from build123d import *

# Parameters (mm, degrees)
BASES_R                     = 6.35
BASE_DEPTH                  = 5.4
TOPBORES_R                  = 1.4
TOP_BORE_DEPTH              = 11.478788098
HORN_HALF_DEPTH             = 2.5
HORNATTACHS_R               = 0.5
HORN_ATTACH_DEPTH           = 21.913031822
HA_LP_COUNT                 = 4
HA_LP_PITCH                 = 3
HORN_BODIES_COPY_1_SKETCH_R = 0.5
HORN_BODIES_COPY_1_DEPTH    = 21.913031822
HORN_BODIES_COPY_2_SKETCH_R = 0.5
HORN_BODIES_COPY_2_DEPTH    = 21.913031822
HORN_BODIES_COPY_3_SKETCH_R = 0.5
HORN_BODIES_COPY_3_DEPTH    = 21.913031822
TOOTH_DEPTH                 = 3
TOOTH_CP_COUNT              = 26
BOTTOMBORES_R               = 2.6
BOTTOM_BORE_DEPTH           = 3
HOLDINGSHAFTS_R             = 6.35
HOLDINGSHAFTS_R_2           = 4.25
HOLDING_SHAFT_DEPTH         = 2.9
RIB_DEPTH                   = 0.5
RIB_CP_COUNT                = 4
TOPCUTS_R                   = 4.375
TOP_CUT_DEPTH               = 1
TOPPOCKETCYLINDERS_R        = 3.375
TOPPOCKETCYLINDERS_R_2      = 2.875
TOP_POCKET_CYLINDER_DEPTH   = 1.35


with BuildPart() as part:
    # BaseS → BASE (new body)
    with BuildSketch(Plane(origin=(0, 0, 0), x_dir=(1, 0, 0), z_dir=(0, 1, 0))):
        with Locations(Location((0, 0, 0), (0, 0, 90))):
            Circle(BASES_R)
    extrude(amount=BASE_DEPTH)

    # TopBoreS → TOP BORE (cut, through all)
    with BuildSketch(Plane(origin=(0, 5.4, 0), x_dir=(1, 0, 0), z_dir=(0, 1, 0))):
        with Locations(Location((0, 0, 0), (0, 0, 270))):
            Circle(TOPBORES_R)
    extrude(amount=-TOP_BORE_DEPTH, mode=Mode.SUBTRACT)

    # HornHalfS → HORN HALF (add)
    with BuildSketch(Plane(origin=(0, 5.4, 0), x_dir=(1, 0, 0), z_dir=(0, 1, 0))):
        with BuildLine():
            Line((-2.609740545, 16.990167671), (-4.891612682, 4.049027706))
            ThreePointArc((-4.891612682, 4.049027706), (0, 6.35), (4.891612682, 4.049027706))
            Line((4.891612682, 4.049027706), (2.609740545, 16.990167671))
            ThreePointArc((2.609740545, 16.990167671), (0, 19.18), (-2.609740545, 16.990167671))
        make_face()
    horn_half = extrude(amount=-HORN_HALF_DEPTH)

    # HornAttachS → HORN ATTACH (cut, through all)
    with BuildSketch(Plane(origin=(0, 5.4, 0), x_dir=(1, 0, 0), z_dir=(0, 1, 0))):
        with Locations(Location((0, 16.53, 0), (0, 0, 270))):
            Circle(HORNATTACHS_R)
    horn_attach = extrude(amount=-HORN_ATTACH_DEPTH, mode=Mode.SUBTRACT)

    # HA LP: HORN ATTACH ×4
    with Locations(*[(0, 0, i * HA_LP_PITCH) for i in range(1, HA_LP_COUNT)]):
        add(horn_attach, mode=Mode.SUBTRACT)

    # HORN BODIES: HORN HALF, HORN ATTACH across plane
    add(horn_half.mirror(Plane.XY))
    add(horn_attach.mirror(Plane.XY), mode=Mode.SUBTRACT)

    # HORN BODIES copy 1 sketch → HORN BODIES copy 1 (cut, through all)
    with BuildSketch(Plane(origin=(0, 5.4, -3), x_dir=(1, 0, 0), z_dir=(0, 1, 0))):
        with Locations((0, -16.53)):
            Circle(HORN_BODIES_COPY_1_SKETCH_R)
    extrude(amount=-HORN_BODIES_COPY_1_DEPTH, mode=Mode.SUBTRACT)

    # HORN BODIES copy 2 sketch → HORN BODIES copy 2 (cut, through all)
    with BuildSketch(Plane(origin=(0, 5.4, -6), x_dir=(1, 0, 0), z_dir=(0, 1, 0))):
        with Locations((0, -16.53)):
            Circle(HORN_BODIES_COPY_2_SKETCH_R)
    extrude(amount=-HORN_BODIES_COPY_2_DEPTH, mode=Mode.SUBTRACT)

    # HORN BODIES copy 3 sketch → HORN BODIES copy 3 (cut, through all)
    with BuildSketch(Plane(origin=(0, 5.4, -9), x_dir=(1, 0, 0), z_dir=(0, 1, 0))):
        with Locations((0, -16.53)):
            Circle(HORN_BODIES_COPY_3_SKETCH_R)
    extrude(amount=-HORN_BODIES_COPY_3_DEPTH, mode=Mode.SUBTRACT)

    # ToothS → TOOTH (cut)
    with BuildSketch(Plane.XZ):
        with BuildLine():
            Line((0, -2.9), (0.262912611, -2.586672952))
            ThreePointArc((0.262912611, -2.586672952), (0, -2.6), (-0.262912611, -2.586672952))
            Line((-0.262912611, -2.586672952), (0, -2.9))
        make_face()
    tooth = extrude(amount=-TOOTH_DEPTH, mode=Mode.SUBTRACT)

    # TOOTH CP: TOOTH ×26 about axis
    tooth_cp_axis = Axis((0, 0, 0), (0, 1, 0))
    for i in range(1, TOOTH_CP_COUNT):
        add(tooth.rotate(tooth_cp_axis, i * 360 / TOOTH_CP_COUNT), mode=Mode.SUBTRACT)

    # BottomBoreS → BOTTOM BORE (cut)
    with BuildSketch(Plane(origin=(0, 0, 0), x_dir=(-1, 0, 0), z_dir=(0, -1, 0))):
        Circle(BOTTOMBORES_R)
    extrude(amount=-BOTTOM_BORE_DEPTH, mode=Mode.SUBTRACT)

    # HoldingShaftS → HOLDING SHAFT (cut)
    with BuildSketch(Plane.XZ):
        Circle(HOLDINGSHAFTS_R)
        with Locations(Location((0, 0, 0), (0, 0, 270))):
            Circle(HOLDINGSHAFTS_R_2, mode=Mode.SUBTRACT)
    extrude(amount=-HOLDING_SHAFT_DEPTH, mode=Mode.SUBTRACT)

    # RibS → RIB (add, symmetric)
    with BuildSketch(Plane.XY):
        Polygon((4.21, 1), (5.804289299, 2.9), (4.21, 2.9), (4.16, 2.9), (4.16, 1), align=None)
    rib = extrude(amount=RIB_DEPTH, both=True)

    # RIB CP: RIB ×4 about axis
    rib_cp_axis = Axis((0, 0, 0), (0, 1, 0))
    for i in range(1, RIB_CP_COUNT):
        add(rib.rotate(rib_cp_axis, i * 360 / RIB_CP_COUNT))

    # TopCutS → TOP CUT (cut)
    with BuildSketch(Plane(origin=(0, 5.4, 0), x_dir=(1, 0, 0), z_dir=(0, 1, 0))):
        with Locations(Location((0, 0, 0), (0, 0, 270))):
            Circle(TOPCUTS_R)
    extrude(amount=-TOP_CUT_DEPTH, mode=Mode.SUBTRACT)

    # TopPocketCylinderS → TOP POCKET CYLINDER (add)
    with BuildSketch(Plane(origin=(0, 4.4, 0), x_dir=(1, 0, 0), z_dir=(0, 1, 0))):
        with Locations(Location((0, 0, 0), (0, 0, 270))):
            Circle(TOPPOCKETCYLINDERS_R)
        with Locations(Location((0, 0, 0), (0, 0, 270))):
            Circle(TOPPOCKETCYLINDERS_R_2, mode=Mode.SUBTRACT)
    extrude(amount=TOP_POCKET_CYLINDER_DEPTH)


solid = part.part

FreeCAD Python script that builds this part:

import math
import FreeCAD as App
import Part
import Sketcher

V = App.Vector
Q = App.Units.Quantity

doc = App.newDocument("Part")
body = doc.addObject("PartDesign::Body", "Body")

# Sketch on XZ plane
sketch1 = doc.addObject("Sketcher::SketchObject", "Sketch")
body.addObject(sketch1)
sketch1.AttachmentSupport = (doc.XZ_Plane, [""])
sketch1.MapMode = "FlatFace"
sketch1.addGeometry(Part.Circle(V(0, 0, 0), V(0, 0, 1), 6.35), False)
sketch1.addConstraint(Sketcher.Constraint("Coincident", 0, 3, -1, 1))
sketch1.addConstraint(Sketcher.Constraint("Diameter", 0, Q("12.7 mm")))
pad1 = doc.addObject("PartDesign::Pad", "Pad")
body.addObject(pad1)
pad1.Profile = sketch1
pad1.Length = 5.4
pad1.Reversed = True

# Sketch on XZ plane
sketch2 = doc.addObject("Sketcher::SketchObject", "Sketch001")
body.addObject(sketch2)
sketch2.AttachmentSupport = (doc.XZ_Plane, [""])
sketch2.MapMode = "FlatFace"
sketch2.AttachmentOffset = App.Placement(V(0, 0, -5.4), App.Rotation())
sketch2.addGeometry(Part.Circle(V(0, 0, 0), V(0, 0, 1), 1.4), False)
sketch2.addConstraint(Sketcher.Constraint("Coincident", 0, 3, -1, 1))
sketch2.addConstraint(Sketcher.Constraint("Diameter", 0, Q("2.8 mm")))
pocket1 = doc.addObject("PartDesign::Pocket", "Pocket")
body.addObject(pocket1)
pocket1.Profile = sketch2
pocket1.Type = "ThroughAll"
pocket1.Reversed = True

# Sketch on XZ plane
sketch3 = doc.addObject("Sketcher::SketchObject", "Sketch002")
body.addObject(sketch3)
sketch3.AttachmentSupport = (doc.XZ_Plane, [""])
sketch3.MapMode = "FlatFace"
sketch3.AttachmentOffset = App.Placement(V(0, 0, -5.4), App.Rotation())
sketch3.addGeometry(Part.LineSegment(V(-2.609741, -16.990168, 0), V(-4.891613, -4.049028, 0)), False)
sketch3.addGeometry(Part.ArcOfCircle(Part.Circle(V(0, 0, 0), V(0, 0, 1), 6.35), math.radians(-140.383775), math.radians(-39.616225)), False)
sketch3.addGeometry(Part.LineSegment(V(4.891613, -4.049028, 0), V(2.609741, -16.990168, 0)), False)
sketch3.addGeometry(Part.ArcOfCircle(Part.Circle(V(0, -16.53, 0), V(0, 0, 1), 2.65), math.radians(-170), math.radians(-10)), False)
sketch3.addConstraint(Sketcher.Constraint("Coincident", 0, 2, 1, 1))
sketch3.addConstraint(Sketcher.Constraint("Coincident", 1, 2, 2, 1))
sketch3.addConstraint(Sketcher.Constraint("Tangent", 2, 2, 3, 2))
sketch3.addConstraint(Sketcher.Constraint("Tangent", 3, 1, 0, 1))
sketch3.addConstraint(Sketcher.Constraint("Coincident", 1, 3, -1, 1))
sketch3.addConstraint(Sketcher.Constraint("Symmetric", 2, 2, 3, 1, -2))
sketch3.addConstraint(Sketcher.Constraint("Angle", 0, Q("100 deg")))
sketch3.addConstraint(Sketcher.Constraint("Radius", 1, Q("6.35 mm")))
sketch3.addConstraint(Sketcher.Constraint("Radius", 3, Q("2.65 mm")))
sketch3.addConstraint(Sketcher.Constraint("DistanceY", 3, 3, -1, 1, Q("16.53 mm")))
pad2 = doc.addObject("PartDesign::Pad", "Pad001")
body.addObject(pad2)
pad2.Profile = sketch3
pad2.Length = 2.5

# Sketch on XZ plane
sketch4 = doc.addObject("Sketcher::SketchObject", "Sketch003")
body.addObject(sketch4)
sketch4.AttachmentSupport = (doc.XZ_Plane, [""])
sketch4.MapMode = "FlatFace"
sketch4.AttachmentOffset = App.Placement(V(0, 0, -5.4), App.Rotation())
sketch4.addGeometry(Part.Circle(V(0, -16.53, 0), V(0, 0, 1), 0.5), False)
sketch4.addConstraint(Sketcher.Constraint("PointOnObject", 0, 3, -2))
sketch4.addConstraint(Sketcher.Constraint("Diameter", 0, Q("1 mm")))
sketch4.addConstraint(Sketcher.Constraint("DistanceY", 0, 3, -1, 1, Q("16.53 mm")))
pocket2 = doc.addObject("PartDesign::Pocket", "Pocket001")
body.addObject(pocket2)
pocket2.Profile = sketch4
pocket2.Type = "ThroughAll"
pocket2.Reversed = True
doc.recompute()

linearpattern = doc.addObject("PartDesign::LinearPattern", "LinearPattern")
body.addObject(linearpattern)
linearpattern.Originals = [pocket2]
linearpattern.Direction = (doc.Z_Axis, [""])
linearpattern.Mode = "offset"
linearpattern.Offset = 3
linearpattern.Occurrences = 4
body.Tip = linearpattern
doc.recompute()

mirrored = doc.addObject("PartDesign::Mirrored", "Mirrored")
body.addObject(mirrored)
mirrored.Originals = [pad2, pocket2]
mirrored.MirrorPlane = (doc.XY_Plane, [""])
body.Tip = mirrored

# Sketch on XZ plane
sketch5 = doc.addObject("Sketcher::SketchObject", "Sketch004")
body.addObject(sketch5)
sketch5.AttachmentSupport = (doc.XZ_Plane, [""])
sketch5.MapMode = "FlatFace"
sketch5.AttachmentOffset = App.Placement(V(0, 0, -5.4), App.Rotation())
sketch5.addGeometry(Part.Circle(V(0, 13.53, 0), V(0, 0, 1), 0.5), False)
sketch5.addConstraint(Sketcher.Constraint("PointOnObject", 0, 3, -2))
sketch5.addConstraint(Sketcher.Constraint("Diameter", 0, Q("1 mm")))
sketch5.addConstraint(Sketcher.Constraint("DistanceY", -1, 1, 0, 3, Q("13.53 mm")))
pocket3 = doc.addObject("PartDesign::Pocket", "Pocket002")
body.addObject(pocket3)
pocket3.Profile = sketch5
pocket3.Type = "ThroughAll"
pocket3.Reversed = True

# Sketch on XZ plane
sketch6 = doc.addObject("Sketcher::SketchObject", "Sketch005")
body.addObject(sketch6)
sketch6.AttachmentSupport = (doc.XZ_Plane, [""])
sketch6.MapMode = "FlatFace"
sketch6.AttachmentOffset = App.Placement(V(0, 0, -5.4), App.Rotation())
sketch6.addGeometry(Part.Circle(V(0, 10.53, 0), V(0, 0, 1), 0.5), False)
sketch6.addConstraint(Sketcher.Constraint("PointOnObject", 0, 3, -2))
sketch6.addConstraint(Sketcher.Constraint("Diameter", 0, Q("1 mm")))
sketch6.addConstraint(Sketcher.Constraint("DistanceY", -1, 1, 0, 3, Q("10.53 mm")))
pocket4 = doc.addObject("PartDesign::Pocket", "Pocket003")
body.addObject(pocket4)
pocket4.Profile = sketch6
pocket4.Type = "ThroughAll"
pocket4.Reversed = True

# Sketch on XZ plane
sketch7 = doc.addObject("Sketcher::SketchObject", "Sketch006")
body.addObject(sketch7)
sketch7.AttachmentSupport = (doc.XZ_Plane, [""])
sketch7.MapMode = "FlatFace"
sketch7.AttachmentOffset = App.Placement(V(0, 0, -5.4), App.Rotation())
sketch7.addGeometry(Part.Circle(V(0, 7.53, 0), V(0, 0, 1), 0.5), False)
sketch7.addConstraint(Sketcher.Constraint("PointOnObject", 0, 3, -2))
sketch7.addConstraint(Sketcher.Constraint("Diameter", 0, Q("1 mm")))
sketch7.addConstraint(Sketcher.Constraint("DistanceY", -1, 1, 0, 3, Q("7.53 mm")))
pocket5 = doc.addObject("PartDesign::Pocket", "Pocket004")
body.addObject(pocket5)
pocket5.Profile = sketch7
pocket5.Type = "ThroughAll"
pocket5.Reversed = True

# Sketch on XZ plane
sketch8 = doc.addObject("Sketcher::SketchObject", "Sketch007")
body.addObject(sketch8)
sketch8.AttachmentSupport = (doc.XZ_Plane, [""])
sketch8.MapMode = "FlatFace"
sketch8.addGeometry(Part.LineSegment(V(0, -2.9, 0), V(0.262913, -2.586673, 0)), False)
sketch8.addGeometry(Part.ArcOfCircle(Part.Circle(V(0, 0, 0), V(0, 0, 1), 2.6), math.radians(-95.803682), math.radians(-84.196318)), False)
sketch8.addGeometry(Part.LineSegment(V(-0.262913, -2.586673, 0), V(0, -2.9, 0)), False)
sketch8.addConstraint(Sketcher.Constraint("Coincident", 0, 2, 1, 2))
sketch8.addConstraint(Sketcher.Constraint("Coincident", 1, 1, 2, 1))
sketch8.addConstraint(Sketcher.Constraint("Coincident", 2, 2, 0, 1))
sketch8.addConstraint(Sketcher.Constraint("Coincident", 1, 3, -1, 1))
sketch8.addConstraint(Sketcher.Constraint("PointOnObject", 2, 2, -2))
sketch8.addConstraint(Sketcher.Constraint("Horizontal", 0, 2, 1, 1))
sketch8.addConstraint(Sketcher.Constraint("Radius", 1, Q("2.6 mm")))
sketch8.addConstraint(Sketcher.Constraint("Angle", 0, Q("50 deg")))
sketch8.addConstraint(Sketcher.Constraint("DistanceY", 2, 2, -1, 1, Q("2.9 mm")))
pocket6 = doc.addObject("PartDesign::Pocket", "Pocket005")
body.addObject(pocket6)
pocket6.Profile = sketch8
pocket6.Length = 3
doc.recompute()

polarpattern = doc.addObject("PartDesign::PolarPattern", "PolarPattern")
body.addObject(polarpattern)
polarpattern.Originals = [pocket6]
polarpattern.Axis = (doc.Y_Axis, [""])
polarpattern.Angle = 360
polarpattern.Occurrences = 26
body.Tip = polarpattern

# Sketch on XZ plane
sketch9 = doc.addObject("Sketcher::SketchObject", "Sketch008")
body.addObject(sketch9)
sketch9.AttachmentSupport = (doc.XZ_Plane, [""])
sketch9.MapMode = "FlatFace"
sketch9.addGeometry(Part.Circle(V(0, 0, 0), V(0, 0, 1), 2.6), False)
sketch9.addConstraint(Sketcher.Constraint("Coincident", 0, 3, -1, 1))
sketch9.addConstraint(Sketcher.Constraint("Diameter", 0, Q("5.2 mm")))
pocket7 = doc.addObject("PartDesign::Pocket", "Pocket006")
body.addObject(pocket7)
pocket7.Profile = sketch9
pocket7.Length = 3

# Sketch on XZ plane
sketch10 = doc.addObject("Sketcher::SketchObject", "Sketch009")
body.addObject(sketch10)
sketch10.AttachmentSupport = (doc.XZ_Plane, [""])
sketch10.MapMode = "FlatFace"
sketch10.addGeometry(Part.Circle(V(0, 0, 0), V(0, 0, 1), 6.35), False)
sketch10.addGeometry(Part.Circle(V(0, 0, 0), V(0, 0, 1), 4.25), False)
sketch10.addConstraint(Sketcher.Constraint("Coincident", 0, 3, -1, 1))
sketch10.addConstraint(Sketcher.Constraint("Coincident", 1, 3, -1, 1))
sketch10.addConstraint(Sketcher.Constraint("Diameter", 0, Q("12.7 mm")))
sketch10.addConstraint(Sketcher.Constraint("Diameter", 1, Q("8.5 mm")))
pocket8 = doc.addObject("PartDesign::Pocket", "Pocket007")
body.addObject(pocket8)
pocket8.Profile = sketch10
pocket8.Length = 2.9

# Sketch on XY plane
sketch11 = doc.addObject("Sketcher::SketchObject", "Sketch010")
body.addObject(sketch11)
sketch11.AttachmentSupport = (doc.XY_Plane, [""])
sketch11.MapMode = "FlatFace"
sketch11.addGeometry(Part.LineSegment(V(4.21, 1, 0), V(5.804289, 2.9, 0)), False)
sketch11.addGeometry(Part.LineSegment(V(5.804289, 2.9, 0), V(4.16, 2.9, 0)), False)
sketch11.addGeometry(Part.LineSegment(V(4.16, 2.9, 0), V(4.16, 1, 0)), False)
sketch11.addGeometry(Part.LineSegment(V(4.16, 1, 0), V(4.21, 1, 0)), False)
sketch11.addConstraint(Sketcher.Constraint("Coincident", 0, 2, 1, 1))
sketch11.addConstraint(Sketcher.Constraint("Coincident", 1, 2, 2, 1))
sketch11.addConstraint(Sketcher.Constraint("Coincident", 2, 2, 3, 1))
sketch11.addConstraint(Sketcher.Constraint("Coincident", 3, 2, 0, 1))
sketch11.addConstraint(Sketcher.Constraint("Horizontal", 1))
sketch11.addConstraint(Sketcher.Constraint("Vertical", 2))
sketch11.addConstraint(Sketcher.Constraint("Horizontal", 3))
sketch11.addConstraint(Sketcher.Constraint("Angle", 0, Q("50 deg")))
sketch11.addConstraint(Sketcher.Constraint("DistanceY", 2, 2, 2, 1, Q("1.9 mm")))
sketch11.addConstraint(Sketcher.Constraint("DistanceY", -1, 1, 2, 2, Q("1 mm")))
sketch11.addConstraint(Sketcher.Constraint("DistanceX", 3, 1, 3, 2, Q("0.05 mm")))
sketch11.addConstraint(Sketcher.Constraint("DistanceX", -1, 1, 1, 2, Q("4.16 mm")))
pad3 = doc.addObject("PartDesign::Pad", "Pad002")
body.addObject(pad3)
pad3.Profile = sketch11
pad3.Length = 1
pad3.Midplane = True
doc.recompute()

polarpattern2 = doc.addObject("PartDesign::PolarPattern", "PolarPattern001")
body.addObject(polarpattern2)
polarpattern2.Originals = [pad3]
polarpattern2.Axis = (doc.Y_Axis, [""])
polarpattern2.Angle = 360
polarpattern2.Occurrences = 4
body.Tip = polarpattern2

# Sketch on XZ plane
sketch12 = doc.addObject("Sketcher::SketchObject", "Sketch011")
body.addObject(sketch12)
sketch12.AttachmentSupport = (doc.XZ_Plane, [""])
sketch12.MapMode = "FlatFace"
sketch12.AttachmentOffset = App.Placement(V(0, 0, -5.4), App.Rotation())
sketch12.addGeometry(Part.Circle(V(0, 0, 0), V(0, 0, 1), 4.375), False)
sketch12.addConstraint(Sketcher.Constraint("Coincident", 0, 3, -1, 1))
sketch12.addConstraint(Sketcher.Constraint("Diameter", 0, Q("8.75 mm")))
pocket9 = doc.addObject("PartDesign::Pocket", "Pocket008")
body.addObject(pocket9)
pocket9.Profile = sketch12
pocket9.Length = 1
pocket9.Reversed = True

# Sketch on XZ plane
sketch13 = doc.addObject("Sketcher::SketchObject", "Sketch012")
body.addObject(sketch13)
sketch13.AttachmentSupport = (doc.XZ_Plane, [""])
sketch13.MapMode = "FlatFace"
sketch13.AttachmentOffset = App.Placement(V(0, 0, -4.4), App.Rotation())
sketch13.addGeometry(Part.Circle(V(0, 0, 0), V(0, 0, 1), 3.375), False)
sketch13.addGeometry(Part.Circle(V(0, 0, 0), V(0, 0, 1), 2.875), False)
sketch13.addConstraint(Sketcher.Constraint("Coincident", 0, 3, -1, 1))
sketch13.addConstraint(Sketcher.Constraint("Coincident", 1, 3, -1, 1))
sketch13.addConstraint(Sketcher.Constraint("Diameter", 0, Q("6.75 mm")))
sketch13.addConstraint(Sketcher.Constraint("Diameter", 1, Q("5.75 mm")))
pad4 = doc.addObject("PartDesign::Pad", "Pad003")
body.addObject(pad4)
pad4.Profile = sketch13
pad4.Length = 1.35
pad4.Reversed = True

doc.recompute()
